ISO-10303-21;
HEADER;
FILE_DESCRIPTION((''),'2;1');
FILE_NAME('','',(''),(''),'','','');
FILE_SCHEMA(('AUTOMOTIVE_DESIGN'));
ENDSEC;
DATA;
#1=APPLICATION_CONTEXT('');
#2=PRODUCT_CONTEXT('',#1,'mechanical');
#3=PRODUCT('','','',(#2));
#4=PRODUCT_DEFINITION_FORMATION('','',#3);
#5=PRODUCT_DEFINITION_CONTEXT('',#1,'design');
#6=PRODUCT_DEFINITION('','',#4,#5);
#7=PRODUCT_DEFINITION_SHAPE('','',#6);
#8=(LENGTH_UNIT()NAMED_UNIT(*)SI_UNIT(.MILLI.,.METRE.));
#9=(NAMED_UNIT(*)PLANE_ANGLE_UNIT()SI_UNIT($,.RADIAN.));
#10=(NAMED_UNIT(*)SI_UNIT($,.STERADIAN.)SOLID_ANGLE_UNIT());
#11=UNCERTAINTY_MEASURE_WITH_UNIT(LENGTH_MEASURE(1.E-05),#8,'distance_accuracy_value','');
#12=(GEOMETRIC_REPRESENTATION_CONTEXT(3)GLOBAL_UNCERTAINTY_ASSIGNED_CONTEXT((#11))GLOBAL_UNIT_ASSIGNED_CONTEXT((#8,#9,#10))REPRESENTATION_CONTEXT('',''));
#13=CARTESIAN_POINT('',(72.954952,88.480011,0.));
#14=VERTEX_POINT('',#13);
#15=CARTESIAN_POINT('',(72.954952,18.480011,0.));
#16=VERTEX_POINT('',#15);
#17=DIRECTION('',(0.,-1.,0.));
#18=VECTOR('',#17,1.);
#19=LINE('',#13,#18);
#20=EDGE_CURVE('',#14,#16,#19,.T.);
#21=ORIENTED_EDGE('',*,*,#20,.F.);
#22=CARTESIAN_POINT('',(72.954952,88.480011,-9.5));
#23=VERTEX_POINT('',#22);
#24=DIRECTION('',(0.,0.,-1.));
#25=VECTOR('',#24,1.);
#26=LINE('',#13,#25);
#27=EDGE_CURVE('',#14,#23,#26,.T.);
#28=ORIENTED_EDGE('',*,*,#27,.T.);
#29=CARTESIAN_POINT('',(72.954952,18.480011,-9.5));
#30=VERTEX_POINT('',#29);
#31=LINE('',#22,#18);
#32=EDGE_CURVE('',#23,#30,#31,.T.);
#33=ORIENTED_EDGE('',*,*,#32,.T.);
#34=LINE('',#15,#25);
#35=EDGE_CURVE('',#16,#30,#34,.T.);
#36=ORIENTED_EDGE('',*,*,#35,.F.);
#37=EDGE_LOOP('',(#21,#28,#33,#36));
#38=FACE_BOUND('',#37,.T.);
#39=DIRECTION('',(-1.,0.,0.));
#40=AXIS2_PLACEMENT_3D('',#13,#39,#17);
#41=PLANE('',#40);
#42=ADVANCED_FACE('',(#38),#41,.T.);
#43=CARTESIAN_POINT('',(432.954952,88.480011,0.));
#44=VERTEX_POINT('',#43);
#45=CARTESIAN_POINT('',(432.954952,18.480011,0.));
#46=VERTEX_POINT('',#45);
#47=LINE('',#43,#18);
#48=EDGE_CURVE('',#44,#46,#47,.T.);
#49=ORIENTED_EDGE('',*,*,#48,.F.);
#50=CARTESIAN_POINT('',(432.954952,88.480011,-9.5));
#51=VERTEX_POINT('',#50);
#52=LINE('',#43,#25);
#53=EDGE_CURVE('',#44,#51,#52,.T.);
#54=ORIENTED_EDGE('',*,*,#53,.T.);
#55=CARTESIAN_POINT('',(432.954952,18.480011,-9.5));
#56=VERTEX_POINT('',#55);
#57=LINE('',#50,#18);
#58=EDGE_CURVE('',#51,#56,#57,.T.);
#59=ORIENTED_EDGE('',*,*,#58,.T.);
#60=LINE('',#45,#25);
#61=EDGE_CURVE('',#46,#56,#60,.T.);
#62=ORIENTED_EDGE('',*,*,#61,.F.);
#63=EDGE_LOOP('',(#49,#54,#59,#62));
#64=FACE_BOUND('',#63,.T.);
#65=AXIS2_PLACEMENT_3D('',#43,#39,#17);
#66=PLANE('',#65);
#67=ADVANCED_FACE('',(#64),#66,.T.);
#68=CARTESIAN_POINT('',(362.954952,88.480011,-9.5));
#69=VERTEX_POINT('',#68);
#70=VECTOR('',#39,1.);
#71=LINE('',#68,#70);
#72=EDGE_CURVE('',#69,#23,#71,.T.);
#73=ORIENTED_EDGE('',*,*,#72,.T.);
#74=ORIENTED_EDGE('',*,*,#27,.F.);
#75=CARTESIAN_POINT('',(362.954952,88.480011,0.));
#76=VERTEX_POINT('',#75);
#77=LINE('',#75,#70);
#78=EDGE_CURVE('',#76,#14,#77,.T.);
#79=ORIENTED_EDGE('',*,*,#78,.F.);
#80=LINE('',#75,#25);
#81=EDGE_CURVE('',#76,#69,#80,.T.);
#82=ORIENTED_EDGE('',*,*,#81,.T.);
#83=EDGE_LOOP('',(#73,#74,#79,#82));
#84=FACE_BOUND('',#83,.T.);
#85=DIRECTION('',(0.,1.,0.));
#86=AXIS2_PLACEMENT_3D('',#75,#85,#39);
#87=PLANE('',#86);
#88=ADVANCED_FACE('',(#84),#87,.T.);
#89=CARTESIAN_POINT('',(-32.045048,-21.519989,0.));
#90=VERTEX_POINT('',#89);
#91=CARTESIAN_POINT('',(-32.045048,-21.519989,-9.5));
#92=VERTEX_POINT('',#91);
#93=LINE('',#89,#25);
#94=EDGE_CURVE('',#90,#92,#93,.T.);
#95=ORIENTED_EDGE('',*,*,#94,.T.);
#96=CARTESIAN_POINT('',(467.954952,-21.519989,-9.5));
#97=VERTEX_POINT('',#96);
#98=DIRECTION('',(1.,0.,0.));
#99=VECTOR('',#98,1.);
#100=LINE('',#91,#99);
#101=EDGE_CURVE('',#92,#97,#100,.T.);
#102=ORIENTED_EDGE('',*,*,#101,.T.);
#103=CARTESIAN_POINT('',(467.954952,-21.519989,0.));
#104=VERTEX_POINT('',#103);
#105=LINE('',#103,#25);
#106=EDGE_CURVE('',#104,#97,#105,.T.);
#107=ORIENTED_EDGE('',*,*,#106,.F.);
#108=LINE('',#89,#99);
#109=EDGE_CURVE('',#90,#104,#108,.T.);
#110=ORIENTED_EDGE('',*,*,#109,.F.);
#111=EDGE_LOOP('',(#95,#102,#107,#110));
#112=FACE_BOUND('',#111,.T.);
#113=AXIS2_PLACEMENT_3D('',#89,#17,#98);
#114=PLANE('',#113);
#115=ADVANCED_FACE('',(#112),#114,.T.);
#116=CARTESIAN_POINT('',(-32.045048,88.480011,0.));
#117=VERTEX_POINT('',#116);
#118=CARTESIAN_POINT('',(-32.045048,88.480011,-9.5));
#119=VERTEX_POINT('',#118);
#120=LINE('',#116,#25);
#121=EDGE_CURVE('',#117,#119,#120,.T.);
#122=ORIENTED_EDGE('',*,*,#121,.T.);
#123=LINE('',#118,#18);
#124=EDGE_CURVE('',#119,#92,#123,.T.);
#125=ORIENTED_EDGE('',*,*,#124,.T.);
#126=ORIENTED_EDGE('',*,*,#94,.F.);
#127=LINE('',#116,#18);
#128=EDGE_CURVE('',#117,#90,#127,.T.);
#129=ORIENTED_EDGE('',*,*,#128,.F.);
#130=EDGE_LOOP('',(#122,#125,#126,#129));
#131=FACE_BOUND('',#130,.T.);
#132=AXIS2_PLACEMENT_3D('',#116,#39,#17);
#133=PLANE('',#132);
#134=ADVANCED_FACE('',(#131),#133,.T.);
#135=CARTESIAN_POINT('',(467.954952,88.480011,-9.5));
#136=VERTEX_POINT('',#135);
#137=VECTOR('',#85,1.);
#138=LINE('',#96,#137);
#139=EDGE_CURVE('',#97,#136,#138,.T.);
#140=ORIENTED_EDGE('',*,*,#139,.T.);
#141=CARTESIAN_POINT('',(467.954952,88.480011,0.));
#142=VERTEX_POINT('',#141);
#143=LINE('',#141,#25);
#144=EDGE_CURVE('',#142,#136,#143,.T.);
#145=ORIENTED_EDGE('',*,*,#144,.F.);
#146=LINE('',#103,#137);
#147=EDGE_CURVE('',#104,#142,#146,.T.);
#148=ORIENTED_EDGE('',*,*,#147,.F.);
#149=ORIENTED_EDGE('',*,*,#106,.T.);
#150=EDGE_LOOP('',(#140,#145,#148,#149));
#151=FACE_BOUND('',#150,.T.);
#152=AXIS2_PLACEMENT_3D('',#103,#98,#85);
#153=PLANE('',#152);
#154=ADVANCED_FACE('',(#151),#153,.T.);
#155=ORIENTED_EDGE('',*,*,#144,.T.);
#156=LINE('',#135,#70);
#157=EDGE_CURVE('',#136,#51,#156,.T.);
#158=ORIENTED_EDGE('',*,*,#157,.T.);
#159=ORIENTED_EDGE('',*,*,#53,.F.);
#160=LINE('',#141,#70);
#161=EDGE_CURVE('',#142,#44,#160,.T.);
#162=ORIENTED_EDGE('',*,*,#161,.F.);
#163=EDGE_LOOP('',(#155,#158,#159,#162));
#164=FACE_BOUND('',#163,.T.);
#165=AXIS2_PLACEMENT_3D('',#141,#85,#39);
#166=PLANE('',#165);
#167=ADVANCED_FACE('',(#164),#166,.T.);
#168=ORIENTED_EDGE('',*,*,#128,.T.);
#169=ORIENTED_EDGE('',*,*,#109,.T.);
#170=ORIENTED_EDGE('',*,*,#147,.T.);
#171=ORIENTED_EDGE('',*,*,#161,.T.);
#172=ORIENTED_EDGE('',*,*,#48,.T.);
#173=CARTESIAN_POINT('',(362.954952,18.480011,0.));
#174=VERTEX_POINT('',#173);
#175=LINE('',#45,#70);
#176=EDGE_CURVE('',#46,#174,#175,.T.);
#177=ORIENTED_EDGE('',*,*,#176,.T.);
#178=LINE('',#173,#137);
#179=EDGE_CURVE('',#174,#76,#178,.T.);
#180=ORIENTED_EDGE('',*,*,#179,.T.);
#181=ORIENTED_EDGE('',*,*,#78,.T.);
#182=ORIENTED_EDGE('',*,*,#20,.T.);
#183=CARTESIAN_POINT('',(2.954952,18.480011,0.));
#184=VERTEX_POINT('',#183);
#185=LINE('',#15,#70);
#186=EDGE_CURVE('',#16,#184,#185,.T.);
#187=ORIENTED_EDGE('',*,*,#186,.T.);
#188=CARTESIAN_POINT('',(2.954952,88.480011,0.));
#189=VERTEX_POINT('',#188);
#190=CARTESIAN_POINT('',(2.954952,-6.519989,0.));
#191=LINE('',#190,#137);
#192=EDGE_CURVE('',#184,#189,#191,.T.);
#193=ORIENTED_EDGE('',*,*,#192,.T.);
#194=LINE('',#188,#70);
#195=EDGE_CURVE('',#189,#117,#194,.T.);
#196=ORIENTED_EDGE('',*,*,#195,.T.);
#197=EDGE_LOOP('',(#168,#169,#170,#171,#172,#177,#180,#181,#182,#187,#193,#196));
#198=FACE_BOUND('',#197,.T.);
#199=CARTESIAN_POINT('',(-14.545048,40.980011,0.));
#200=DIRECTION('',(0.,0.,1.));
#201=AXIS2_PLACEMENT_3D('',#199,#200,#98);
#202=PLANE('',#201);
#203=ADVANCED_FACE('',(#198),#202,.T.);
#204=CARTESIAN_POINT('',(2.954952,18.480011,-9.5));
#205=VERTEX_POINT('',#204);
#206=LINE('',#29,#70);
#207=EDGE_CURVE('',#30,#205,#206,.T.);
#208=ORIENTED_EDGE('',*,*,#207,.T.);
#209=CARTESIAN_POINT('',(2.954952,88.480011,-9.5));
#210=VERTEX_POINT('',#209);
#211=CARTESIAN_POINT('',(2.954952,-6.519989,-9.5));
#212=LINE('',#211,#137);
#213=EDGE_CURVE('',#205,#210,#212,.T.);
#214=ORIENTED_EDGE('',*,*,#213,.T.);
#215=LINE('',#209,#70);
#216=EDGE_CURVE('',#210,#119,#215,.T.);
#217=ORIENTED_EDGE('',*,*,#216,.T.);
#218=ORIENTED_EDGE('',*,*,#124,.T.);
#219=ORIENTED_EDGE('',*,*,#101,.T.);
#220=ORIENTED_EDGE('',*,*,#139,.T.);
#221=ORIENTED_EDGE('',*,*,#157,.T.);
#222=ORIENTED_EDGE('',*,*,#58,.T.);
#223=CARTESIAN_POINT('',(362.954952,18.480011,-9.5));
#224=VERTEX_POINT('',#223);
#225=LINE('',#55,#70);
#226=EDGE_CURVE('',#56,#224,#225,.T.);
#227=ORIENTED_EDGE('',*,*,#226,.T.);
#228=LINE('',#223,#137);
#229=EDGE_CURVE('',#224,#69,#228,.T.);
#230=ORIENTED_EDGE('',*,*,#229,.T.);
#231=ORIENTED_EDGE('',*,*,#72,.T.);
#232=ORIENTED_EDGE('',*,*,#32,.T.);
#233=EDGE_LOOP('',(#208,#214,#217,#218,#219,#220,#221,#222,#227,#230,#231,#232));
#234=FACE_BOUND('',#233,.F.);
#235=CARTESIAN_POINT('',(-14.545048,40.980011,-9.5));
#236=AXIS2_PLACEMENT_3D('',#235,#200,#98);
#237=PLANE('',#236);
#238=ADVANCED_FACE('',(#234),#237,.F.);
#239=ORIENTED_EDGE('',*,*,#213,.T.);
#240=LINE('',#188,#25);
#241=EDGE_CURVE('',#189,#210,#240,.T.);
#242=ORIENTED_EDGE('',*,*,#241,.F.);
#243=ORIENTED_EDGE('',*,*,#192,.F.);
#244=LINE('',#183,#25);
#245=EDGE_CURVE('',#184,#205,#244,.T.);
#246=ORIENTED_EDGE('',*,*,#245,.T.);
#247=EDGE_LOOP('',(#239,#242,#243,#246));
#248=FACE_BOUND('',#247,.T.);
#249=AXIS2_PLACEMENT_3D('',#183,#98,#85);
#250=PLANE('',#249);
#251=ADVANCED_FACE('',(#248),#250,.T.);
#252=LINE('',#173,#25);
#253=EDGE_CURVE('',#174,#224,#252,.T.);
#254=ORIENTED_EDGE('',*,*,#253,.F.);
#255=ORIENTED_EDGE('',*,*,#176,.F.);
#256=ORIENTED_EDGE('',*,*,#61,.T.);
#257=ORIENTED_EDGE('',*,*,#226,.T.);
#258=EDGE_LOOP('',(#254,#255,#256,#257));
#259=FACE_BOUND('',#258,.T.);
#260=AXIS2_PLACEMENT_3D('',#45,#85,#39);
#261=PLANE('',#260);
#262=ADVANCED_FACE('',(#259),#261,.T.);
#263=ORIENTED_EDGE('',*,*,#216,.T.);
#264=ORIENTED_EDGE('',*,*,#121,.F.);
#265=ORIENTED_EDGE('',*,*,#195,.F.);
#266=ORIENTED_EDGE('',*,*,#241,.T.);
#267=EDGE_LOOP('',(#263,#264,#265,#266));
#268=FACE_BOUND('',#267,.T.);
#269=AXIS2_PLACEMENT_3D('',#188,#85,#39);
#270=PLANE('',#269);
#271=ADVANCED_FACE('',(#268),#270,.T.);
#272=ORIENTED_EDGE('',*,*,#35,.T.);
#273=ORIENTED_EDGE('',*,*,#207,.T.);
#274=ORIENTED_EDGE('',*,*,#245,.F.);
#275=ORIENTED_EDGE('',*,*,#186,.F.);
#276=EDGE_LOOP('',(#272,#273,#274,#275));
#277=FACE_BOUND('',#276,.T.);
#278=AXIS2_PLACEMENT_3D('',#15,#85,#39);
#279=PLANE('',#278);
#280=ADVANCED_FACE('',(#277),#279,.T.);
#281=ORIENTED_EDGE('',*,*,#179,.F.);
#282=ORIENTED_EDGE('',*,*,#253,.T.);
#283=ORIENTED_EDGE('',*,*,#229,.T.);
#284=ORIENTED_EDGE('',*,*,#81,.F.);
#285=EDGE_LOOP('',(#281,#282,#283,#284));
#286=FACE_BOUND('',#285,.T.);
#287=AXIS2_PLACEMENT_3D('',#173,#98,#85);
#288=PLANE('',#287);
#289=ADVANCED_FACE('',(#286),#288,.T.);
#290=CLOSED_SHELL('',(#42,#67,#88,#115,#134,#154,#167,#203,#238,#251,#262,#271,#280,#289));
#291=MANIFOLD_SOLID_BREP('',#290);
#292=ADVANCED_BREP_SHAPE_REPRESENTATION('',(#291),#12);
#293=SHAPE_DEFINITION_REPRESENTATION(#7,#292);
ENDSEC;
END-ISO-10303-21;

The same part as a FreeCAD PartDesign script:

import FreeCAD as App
import Part
import Sketcher

V = App.Vector

doc = App.newDocument("Part")
body = doc.addObject("PartDesign::Body", "Body")

# Sketch on XY plane
sketch1 = doc.addObject("Sketcher::SketchObject", "Sketch")
body.addObject(sketch1)
sketch1.AttachmentSupport = (doc.XY_Plane, [""])
sketch1.MapMode = "FlatFace"
sketch1.addGeometry([
    Part.LineSegment(V(-32.045048, 88.480011, 0), V(-32.045048, -21.519989, 0)),  # 0
    Part.LineSegment(V(-32.045048, -21.519989, 0), V(467.954952, -21.519989, 0)),  # 1
    Part.LineSegment(V(467.954952, -21.519989, 0), V(467.954952, 88.480011, 0)),  # 2
    Part.LineSegment(V(467.954952, 88.480011, 0), V(432.954952, 88.480011, 0)),  # 3
    Part.LineSegment(V(432.954952, 88.480011, 0), V(432.954952, 18.480011, 0)),  # 4
    Part.LineSegment(V(432.954952, 18.480011, 0), V(362.954952, 18.480011, 0)),  # 5
    Part.LineSegment(V(362.954952, 18.480011, 0), V(362.954952, 88.480011, 0)),  # 6
    Part.LineSegment(V(362.954952, 88.480011, 0), V(72.954952, 88.480011, 0)),  # 7
    Part.LineSegment(V(72.954952, 88.480011, 0), V(72.954952, 18.480011, 0)),  # 8
    Part.LineSegment(V(72.954952, 18.480011, 0), V(2.954952, 18.480011, 0)),  # 9
    Part.LineSegment(V(2.954952, 18.480011, 0), V(2.954952, 88.480011, 0)),  # 10
    Part.LineSegment(V(2.954952, 88.480011, 0), V(-32.045048, 88.480011, 0)),  # 11
], False)
sketch1.addConstraint([
    Sketcher.Constraint("Coincident", 0, 2, 1, 1),
    Sketcher.Constraint("Coincident", 1, 2, 2, 1),
    Sketcher.Constraint("Coincident", 2, 2, 3, 1),
    Sketcher.Constraint("Coincident", 3, 2, 4, 1),
    Sketcher.Constraint("Coincident", 4, 2, 5, 1),
    Sketcher.Constraint("Coincident", 5, 2, 6, 1),
    Sketcher.Constraint("Coincident", 6, 2, 7, 1),
    Sketcher.Constraint("Coincident", 7, 2, 8, 1),
    Sketcher.Constraint("Coincident", 8, 2, 9, 1),
    Sketcher.Constraint("Coincident", 9, 2, 10, 1),
    Sketcher.Constraint("Coincident", 10, 2, 11, 1),
    Sketcher.Constraint("Coincident", 11, 2, 0, 1),
    Sketcher.Constraint("Vertical", 0),
    Sketcher.Constraint("Horizontal", 1),
    Sketcher.Constraint("Vertical", 2),
    Sketcher.Constraint("Horizontal", 3),
    Sketcher.Constraint("Vertical", 4),
    Sketcher.Constraint("Horizontal", 5),
    Sketcher.Constraint("Vertical", 6),
    Sketcher.Constraint("Horizontal", 7),
    Sketcher.Constraint("Vertical", 8),
    Sketcher.Constraint("Horizontal", 9),
    Sketcher.Constraint("Vertical", 10),
    Sketcher.Constraint("Horizontal", 11),
    Sketcher.Constraint("Horizontal", 3, 2, 6, 2),
    Sketcher.Constraint("Horizontal", 5, 2, 8, 2),
    Sketcher.Constraint("Horizontal", 7, 2, 10, 2),
    Sketcher.Constraint("Equal", 5, 9),
    Sketcher.Constraint("Equal", 3, 11),
    Sketcher.Constraint("Equal", 9, 4),
    Sketcher.Constraint("DistanceX", 1, 1, 1, 2, 500.0),
    Sketcher.Constraint("DistanceX", 3, 2, 3, 1, 35.0),
    Sketcher.Constraint("DistanceX", 5, 2, 5, 1, 70.0),
    Sketcher.Constraint("DistanceY", 0, 2, 0, 1, 110.0),
    Sketcher.Constraint("DistanceY", 0, 2, -1, 1, 21.519989),
    Sketcher.Constraint("DistanceX", 0, 2, -1, 1, 32.045048),
])
pad1 = doc.addObject("PartDesign::Pad", "Pad")
body.addObject(pad1)
pad1.Profile = sketch1
pad1.Length = 9.5
pad1.Reversed = True

doc.recompute()
